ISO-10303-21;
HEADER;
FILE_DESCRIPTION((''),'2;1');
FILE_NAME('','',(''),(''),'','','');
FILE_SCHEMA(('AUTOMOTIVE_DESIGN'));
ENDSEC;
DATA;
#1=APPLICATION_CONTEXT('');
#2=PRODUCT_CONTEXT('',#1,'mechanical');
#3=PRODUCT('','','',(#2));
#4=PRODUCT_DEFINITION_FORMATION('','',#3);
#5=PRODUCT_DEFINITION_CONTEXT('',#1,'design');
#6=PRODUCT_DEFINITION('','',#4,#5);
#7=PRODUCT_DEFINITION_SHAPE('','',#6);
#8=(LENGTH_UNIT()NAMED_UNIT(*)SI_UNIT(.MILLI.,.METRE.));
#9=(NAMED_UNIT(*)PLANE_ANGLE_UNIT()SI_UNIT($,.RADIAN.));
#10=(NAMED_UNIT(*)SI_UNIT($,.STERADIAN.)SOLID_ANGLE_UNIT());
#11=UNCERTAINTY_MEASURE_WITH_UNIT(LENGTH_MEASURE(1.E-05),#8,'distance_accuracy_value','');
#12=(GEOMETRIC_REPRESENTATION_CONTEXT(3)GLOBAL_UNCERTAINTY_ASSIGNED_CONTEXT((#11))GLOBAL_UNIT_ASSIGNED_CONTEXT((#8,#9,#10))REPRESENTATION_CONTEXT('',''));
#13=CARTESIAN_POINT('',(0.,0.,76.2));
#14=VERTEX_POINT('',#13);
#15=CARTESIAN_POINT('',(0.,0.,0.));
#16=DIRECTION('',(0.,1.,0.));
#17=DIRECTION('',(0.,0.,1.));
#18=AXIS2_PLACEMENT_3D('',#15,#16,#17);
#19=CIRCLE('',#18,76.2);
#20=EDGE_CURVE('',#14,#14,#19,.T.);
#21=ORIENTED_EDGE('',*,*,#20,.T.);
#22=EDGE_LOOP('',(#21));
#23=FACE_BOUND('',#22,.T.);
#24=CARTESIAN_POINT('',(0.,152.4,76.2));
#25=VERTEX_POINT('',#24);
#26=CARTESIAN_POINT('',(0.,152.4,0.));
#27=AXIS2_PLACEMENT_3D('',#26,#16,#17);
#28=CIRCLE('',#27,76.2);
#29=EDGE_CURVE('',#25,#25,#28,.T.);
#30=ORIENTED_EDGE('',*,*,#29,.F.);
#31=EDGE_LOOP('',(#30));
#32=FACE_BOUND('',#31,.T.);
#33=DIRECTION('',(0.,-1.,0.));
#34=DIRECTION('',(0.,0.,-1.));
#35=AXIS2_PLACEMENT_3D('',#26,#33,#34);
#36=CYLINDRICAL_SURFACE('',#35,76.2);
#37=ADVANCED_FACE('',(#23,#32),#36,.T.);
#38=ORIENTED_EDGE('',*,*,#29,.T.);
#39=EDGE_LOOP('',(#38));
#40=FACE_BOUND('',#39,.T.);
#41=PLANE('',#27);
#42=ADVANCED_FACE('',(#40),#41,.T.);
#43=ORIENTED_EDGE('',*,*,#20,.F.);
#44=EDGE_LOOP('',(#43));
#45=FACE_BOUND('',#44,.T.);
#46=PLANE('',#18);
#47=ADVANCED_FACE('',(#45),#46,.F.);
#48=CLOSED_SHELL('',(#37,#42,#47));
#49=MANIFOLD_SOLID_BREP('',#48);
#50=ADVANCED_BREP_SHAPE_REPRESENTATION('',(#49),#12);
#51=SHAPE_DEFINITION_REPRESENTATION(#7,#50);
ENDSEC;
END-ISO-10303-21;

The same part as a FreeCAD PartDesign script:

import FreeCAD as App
import Part
import Sketcher

V = App.Vector
Q = App.Units.Quantity

doc = App.newDocument("Part")
body = doc.addObject("PartDesign::Body", "Body")

sketch1 = doc.addObject("Sketcher::SketchObject", "Sketch")
body.addObject(sketch1)
sketch1.AttachmentSupport = (doc.XZ_Plane, [""])
sketch1.MapMode = "FlatFace"
sketch1.addGeometry(Part.Circle(V(0, 0, 0), V(0, 0, 1), 76), False)
sketch1.addConstraint([
    Sketcher.Constraint("Coincident", 0, 3, -1, 1),
    Sketcher.Constraint("Diameter", 0, Q("6 in")),
])
pad1 = doc.addObject("PartDesign::Pad", "Pad")
body.addObject(pad1)
pad1.Profile = sketch1
pad1.Length = Q("6 in")
pad1.Reversed = True

doc.recompute()
